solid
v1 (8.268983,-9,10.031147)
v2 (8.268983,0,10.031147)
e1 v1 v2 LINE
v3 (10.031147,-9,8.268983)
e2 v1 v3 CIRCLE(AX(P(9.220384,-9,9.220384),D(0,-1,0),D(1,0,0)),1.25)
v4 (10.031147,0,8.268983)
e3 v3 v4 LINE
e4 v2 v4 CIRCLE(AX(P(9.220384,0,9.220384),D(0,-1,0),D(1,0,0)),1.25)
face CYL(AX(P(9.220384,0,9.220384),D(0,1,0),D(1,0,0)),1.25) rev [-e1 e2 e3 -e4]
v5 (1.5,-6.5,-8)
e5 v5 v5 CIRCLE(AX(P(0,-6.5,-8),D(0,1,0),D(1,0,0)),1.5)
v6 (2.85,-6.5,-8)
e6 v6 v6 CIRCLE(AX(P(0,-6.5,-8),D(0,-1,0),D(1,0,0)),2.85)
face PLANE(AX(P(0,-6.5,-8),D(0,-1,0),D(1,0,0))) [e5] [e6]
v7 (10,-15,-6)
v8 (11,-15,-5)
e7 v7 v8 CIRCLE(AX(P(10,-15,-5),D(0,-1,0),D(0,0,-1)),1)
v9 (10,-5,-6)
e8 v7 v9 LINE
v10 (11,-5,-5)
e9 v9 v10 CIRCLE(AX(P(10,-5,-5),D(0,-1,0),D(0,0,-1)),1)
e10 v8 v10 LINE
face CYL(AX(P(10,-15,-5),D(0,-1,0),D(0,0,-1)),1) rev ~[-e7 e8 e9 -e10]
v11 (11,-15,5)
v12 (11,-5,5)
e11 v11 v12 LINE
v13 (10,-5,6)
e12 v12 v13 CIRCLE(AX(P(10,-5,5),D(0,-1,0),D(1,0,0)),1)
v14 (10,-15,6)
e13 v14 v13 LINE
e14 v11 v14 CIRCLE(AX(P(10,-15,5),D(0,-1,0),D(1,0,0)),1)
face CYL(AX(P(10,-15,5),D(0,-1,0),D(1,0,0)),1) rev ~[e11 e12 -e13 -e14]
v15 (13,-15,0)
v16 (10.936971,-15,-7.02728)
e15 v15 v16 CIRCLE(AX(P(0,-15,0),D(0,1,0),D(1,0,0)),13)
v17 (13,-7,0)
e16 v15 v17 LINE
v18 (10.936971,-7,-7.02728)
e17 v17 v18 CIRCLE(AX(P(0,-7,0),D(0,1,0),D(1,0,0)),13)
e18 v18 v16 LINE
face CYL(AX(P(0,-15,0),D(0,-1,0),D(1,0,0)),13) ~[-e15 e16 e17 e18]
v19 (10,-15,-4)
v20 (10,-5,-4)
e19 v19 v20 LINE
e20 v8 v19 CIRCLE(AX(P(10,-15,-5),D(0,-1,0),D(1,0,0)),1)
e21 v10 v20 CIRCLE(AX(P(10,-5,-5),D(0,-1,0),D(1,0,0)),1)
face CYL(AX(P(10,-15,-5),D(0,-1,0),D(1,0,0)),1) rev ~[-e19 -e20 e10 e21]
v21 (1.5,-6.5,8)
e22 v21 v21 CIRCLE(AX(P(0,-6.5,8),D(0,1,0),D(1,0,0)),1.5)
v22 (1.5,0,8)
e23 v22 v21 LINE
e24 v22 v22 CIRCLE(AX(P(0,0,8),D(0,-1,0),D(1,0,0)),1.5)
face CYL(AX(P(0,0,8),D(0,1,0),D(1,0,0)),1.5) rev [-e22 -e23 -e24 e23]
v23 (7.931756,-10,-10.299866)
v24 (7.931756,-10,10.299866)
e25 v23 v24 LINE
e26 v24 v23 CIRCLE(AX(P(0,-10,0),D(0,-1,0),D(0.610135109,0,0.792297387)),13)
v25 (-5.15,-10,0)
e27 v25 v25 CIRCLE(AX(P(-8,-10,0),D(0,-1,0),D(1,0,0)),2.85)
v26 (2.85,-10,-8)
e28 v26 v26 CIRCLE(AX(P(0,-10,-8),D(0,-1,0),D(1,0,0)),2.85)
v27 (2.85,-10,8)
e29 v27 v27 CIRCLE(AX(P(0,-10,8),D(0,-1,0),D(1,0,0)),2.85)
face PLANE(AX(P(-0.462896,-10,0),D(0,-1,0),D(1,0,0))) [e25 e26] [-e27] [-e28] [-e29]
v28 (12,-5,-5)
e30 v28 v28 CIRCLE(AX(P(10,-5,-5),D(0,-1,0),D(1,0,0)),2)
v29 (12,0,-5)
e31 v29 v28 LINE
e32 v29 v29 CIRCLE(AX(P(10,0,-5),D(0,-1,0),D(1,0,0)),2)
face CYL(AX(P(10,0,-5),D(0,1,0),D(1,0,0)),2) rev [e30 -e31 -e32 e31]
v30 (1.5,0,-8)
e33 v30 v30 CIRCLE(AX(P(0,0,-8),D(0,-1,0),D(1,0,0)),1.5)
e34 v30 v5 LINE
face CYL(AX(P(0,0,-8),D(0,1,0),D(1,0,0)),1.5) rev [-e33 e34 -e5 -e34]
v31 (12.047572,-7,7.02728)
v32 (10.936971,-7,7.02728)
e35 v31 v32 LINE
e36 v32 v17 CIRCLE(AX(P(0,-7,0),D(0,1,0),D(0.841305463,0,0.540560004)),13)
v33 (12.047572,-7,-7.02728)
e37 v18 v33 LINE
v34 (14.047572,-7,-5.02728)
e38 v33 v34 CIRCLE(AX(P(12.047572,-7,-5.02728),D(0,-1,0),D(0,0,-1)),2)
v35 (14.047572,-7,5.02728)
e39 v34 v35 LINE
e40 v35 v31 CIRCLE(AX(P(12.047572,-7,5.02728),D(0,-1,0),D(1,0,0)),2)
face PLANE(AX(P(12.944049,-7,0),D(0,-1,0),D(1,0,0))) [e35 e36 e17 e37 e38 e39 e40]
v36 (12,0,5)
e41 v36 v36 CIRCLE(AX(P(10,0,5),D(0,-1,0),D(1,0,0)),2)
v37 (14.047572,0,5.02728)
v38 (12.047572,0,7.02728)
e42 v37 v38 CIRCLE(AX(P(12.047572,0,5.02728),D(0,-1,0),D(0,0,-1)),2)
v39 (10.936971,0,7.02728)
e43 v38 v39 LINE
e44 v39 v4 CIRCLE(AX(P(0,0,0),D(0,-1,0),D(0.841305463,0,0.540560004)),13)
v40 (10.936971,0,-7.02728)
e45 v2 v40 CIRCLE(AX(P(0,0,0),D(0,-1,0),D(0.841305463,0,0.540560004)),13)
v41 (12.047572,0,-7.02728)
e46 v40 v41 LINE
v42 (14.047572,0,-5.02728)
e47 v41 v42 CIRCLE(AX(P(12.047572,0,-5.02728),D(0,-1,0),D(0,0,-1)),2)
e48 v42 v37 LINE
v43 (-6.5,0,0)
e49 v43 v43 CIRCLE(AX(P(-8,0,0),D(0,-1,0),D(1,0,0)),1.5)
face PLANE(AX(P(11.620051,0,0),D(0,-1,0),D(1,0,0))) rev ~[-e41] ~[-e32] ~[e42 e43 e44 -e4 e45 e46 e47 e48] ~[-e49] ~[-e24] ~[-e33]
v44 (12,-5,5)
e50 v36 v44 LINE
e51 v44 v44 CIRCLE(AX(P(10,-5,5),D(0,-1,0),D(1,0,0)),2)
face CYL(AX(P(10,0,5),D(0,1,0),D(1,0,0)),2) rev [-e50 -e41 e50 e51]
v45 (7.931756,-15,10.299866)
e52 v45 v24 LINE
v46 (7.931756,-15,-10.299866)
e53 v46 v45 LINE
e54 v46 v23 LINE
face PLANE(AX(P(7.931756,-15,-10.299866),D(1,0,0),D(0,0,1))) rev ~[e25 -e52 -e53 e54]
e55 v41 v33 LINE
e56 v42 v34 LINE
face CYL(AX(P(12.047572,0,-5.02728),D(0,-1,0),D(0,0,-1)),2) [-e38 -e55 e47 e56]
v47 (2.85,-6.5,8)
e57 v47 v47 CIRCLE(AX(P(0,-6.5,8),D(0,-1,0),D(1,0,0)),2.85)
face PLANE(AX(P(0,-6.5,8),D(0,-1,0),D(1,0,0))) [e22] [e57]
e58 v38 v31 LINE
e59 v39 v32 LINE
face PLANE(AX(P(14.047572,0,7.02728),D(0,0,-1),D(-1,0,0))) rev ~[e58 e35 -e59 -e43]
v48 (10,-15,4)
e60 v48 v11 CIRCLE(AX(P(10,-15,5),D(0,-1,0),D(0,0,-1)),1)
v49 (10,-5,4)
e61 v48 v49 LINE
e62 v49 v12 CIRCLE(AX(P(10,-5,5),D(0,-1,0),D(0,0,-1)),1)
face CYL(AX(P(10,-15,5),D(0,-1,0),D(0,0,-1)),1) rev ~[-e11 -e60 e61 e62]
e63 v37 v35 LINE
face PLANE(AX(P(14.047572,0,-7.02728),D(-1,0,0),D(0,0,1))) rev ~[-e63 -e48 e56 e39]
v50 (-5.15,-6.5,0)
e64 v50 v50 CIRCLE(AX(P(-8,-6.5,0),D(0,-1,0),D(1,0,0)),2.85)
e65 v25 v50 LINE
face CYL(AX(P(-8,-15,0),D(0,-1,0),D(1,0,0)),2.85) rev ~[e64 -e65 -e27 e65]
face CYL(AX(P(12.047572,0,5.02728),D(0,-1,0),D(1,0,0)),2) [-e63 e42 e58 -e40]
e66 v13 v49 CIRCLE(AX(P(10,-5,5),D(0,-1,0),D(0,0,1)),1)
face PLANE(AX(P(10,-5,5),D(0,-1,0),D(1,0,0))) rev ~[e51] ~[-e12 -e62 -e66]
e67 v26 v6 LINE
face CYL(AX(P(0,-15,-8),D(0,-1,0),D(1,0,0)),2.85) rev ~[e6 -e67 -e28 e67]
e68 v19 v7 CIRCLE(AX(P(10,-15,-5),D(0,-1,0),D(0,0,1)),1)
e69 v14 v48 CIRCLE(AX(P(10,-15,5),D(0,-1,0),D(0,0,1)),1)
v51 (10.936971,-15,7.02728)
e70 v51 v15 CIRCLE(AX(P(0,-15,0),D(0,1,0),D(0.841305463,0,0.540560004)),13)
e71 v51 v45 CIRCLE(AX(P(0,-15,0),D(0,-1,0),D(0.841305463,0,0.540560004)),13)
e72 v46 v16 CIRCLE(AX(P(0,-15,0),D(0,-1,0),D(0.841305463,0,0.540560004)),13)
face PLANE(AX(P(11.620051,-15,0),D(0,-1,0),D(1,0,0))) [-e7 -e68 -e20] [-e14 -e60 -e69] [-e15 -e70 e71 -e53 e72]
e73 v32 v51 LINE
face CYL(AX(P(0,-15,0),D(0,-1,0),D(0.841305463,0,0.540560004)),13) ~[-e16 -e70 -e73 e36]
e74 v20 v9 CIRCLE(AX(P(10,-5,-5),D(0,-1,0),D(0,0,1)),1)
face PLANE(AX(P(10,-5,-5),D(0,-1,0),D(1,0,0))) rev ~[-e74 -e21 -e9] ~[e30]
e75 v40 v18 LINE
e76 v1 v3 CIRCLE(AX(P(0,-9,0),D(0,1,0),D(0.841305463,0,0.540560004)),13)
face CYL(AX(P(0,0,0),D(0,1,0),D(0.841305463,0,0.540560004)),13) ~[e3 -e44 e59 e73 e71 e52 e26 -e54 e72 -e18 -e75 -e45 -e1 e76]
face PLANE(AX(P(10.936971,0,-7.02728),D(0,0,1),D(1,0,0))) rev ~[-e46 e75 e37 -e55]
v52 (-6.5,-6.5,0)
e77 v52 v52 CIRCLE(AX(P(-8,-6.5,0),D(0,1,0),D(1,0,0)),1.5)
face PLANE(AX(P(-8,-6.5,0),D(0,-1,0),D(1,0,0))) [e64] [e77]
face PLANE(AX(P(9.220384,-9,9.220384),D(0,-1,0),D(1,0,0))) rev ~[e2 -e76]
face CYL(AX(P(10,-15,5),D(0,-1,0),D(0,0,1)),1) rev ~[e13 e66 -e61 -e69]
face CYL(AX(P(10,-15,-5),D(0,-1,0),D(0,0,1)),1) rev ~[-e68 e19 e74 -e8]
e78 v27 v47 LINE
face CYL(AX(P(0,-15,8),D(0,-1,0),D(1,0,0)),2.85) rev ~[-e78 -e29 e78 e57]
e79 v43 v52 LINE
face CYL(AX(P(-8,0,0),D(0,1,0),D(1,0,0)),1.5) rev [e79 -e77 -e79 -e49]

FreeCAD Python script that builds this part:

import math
import FreeCAD as App
import Part
import Sketcher
Q = App.Units.Quantity


def edges_at(feature, points):
    """Names of the edges that pass closest to the given points."""
    edges = feature.Shape.Edges
    near = lambda p: min(range(len(edges)), key=lambda i: edges[i].distToShape(Part.Vertex(*p))[0])
    return sorted({f"Edge{near(p) + 1}" for p in points})

doc = App.newDocument("Part")
body = doc.addObject("PartDesign::Body", "Body")

sketch1 = body.newObject("Sketcher::SketchObject", "Sketch")
sketch1.AttachmentSupport = (doc.getObject("XZ_Plane"), [""])
sketch1.MapMode = "FlatFace"
sketch1.addGeometry([
    Part.LineSegment(App.Vector(10.936971, -7.02728, 0), App.Vector(14.047572, -7.02728, 0)),
    Part.LineSegment(App.Vector(14.047572, -7.02728, 0), App.Vector(14.047572, 7.02728, 0)),
    Part.LineSegment(App.Vector(14.047572, 7.02728, 0), App.Vector(10.936971, 7.02728, 0)),
    Part.ArcOfCircle(Part.Circle(App.Vector(0, 0, 0), App.Vector(0, 0, 1), 13), math.radians(32.721769), math.radians(327.278231)),
    Part.Circle(App.Vector(0, -8, 0), App.Vector(0, 0, 1), 1.5),
    Part.Circle(App.Vector(-8, 0, 0), App.Vector(0, 0, 1), 1.5),
    Part.Circle(App.Vector(0, 8, 0), App.Vector(0, 0, 1), 1.5),
], False)
sketch1.addConstraint([
    Sketcher.Constraint("Coincident", 0, 2, 1, 1),
    Sketcher.Constraint("Coincident", 1, 2, 2, 1),
    Sketcher.Constraint("Coincident", 2, 2, 3, 1),
    Sketcher.Constraint("Coincident", 3, 2, 0, 1),
    Sketcher.Constraint("Horizontal", 0),
    Sketcher.Constraint("Vertical", 1),
    Sketcher.Constraint("Horizontal", 2),
    Sketcher.Constraint("Coincident", 3, 3, -1, 1),
    Sketcher.Constraint("Equal", 4, 5),
    Sketcher.Constraint("Equal", 5, 6),
    Sketcher.Constraint("Symmetric", 4, 3, 6, 3, -1, 1),
    Sketcher.Constraint("PointOnObject", 4, 3, -2),
    Sketcher.Constraint("PointOnObject", 5, 3, -1),
    Sketcher.Constraint("Vertical", 2, 2, 3, 2),
    Sketcher.Constraint("Diameter", 4, Q("3 mm")),
    Sketcher.Constraint("Radius", 3, Q("13 mm")),
    Sketcher.Constraint("DistanceY", 4, 3, -1, 1, Q("8 mm")),
    Sketcher.Constraint("DistanceX", 5, 3, -1, 1, Q("8 mm")),
    Sketcher.Constraint("DistanceX", 0, 1, 0, 2, Q("3.110601 mm")),
    Sketcher.Constraint("DistanceY", 1, 1, 1, 2, Q("14.05456 mm")),
])
pad1 = body.newObject("PartDesign::Pad", "Pad")
pad1.Profile = sketch1
pad1.Length = 15

sketch2 = body.newObject("Sketcher::SketchObject", "Sketch001")
sketch2.AttachmentSupport = (doc.getObject("XZ_Plane"), [""])
sketch2.MapMode = "FlatFace"
sketch2.AttachmentOffset = App.Placement(App.Vector(0, 0, 15), App.Rotation())
sketch2.addGeometry([
    Part.ArcOfCircle(Part.Circle(App.Vector(10, 5, 0), App.Vector(0, 0, 1), 1), math.radians(0), math.radians(90)),
    Part.ArcOfCircle(Part.Circle(App.Vector(10, 5, 0), App.Vector(0, 0, 1), 1), math.radians(90), math.radians(270)),
    Part.ArcOfCircle(Part.Circle(App.Vector(10, 5, 0), App.Vector(0, 0, 1), 1), math.radians(-90), math.radians(0)),
    Part.ArcOfCircle(Part.Circle(App.Vector(10, -5, 0), App.Vector(0, 0, 1), 1), math.radians(0), math.radians(90)),
    Part.ArcOfCircle(Part.Circle(App.Vector(10, -5, 0), App.Vector(0, 0, 1), 1), math.radians(90), math.radians(270)),
    Part.ArcOfCircle(Part.Circle(App.Vector(10, -5, 0), App.Vector(0, 0, 1), 1), math.radians(-90), math.radians(0)),
], False)
sketch2.addConstraint([
    Sketcher.Constraint("Tangent", 0, 2, 1, 1),
    Sketcher.Constraint("Tangent", 1, 2, 2, 1),
    Sketcher.Constraint("Tangent", 2, 2, 0, 1),
    Sketcher.Constraint("Tangent", 3, 2, 4, 1),
    Sketcher.Constraint("Tangent", 4, 2, 5, 1),
    Sketcher.Constraint("Tangent", 5, 2, 3, 1),
    Sketcher.Constraint("Equal", 2, 3),
    Sketcher.Constraint("Symmetric", 0, 3, 3, 3, -1),
    Sketcher.Constraint("Horizontal", 1, 3, 2, 2),
    Sketcher.Constraint("Horizontal", 4, 3, 5, 2),
    Sketcher.Constraint("Vertical", 5, 3, 0, 2),
    Sketcher.Constraint("Vertical", 0, 2, 1, 2),
    Sketcher.Constraint("Vertical", 1, 2, 3, 2),
    Sketcher.Constraint("Vertical", 3, 2, 4, 2),
    Sketcher.Constraint("Radius", 0, Q("1 mm")),
    Sketcher.Constraint("DistanceX", -1, 1, 0, 3, Q("10 mm")),
    Sketcher.Constraint("DistanceY", -1, 1, 0, 3, Q("5 mm")),
])
pocket1 = body.newObject("PartDesign::Pocket", "Pocket")
pocket1.Profile = sketch2
pocket1.Length = 15

sketch3 = body.newObject("Sketcher::SketchObject", "Sketch002")
sketch3.AttachmentSupport = (doc.getObject("XZ_Plane"), [""])
sketch3.MapMode = "FlatFace"
sketch3.addGeometry([
    Part.Circle(App.Vector(10, 5, 0), App.Vector(0, 0, 1), 2),
    Part.Circle(App.Vector(10, -5, 0), App.Vector(0, 0, 1), 2),
], False)
sketch3.addConstraint([
    Sketcher.Constraint("Equal", 0, 1),
    Sketcher.Constraint("Symmetric", 0, 3, 1, 3, -1),
    Sketcher.Constraint("Diameter", 0, Q("4 mm")),
    Sketcher.Constraint("DistanceX", -1, 1, 0, 3, Q("10 mm")),
    Sketcher.Constraint("DistanceY", -1, 1, 0, 3, Q("5 mm")),
])
pocket2 = body.newObject("PartDesign::Pocket", "Pocket001")
pocket2.Profile = sketch3
pocket2.Length = 5
pocket2.Reversed = True

sketch4 = body.newObject("Sketcher::SketchObject", "Sketch003")
sketch4.AttachmentSupport = (doc.getObject("XZ_Plane"), [""])
sketch4.MapMode = "FlatFace"
sketch4.AttachmentOffset = App.Placement(App.Vector(0, 0, 15), App.Rotation())
sketch4.addGeometry([
    Part.Circle(App.Vector(0, 8, 0), App.Vector(0, 0, 1), 2.85),
    Part.Circle(App.Vector(0, -8, 0), App.Vector(0, 0, 1), 2.85),
    Part.Circle(App.Vector(-8, 0, 0), App.Vector(0, 0, 1), 2.85),
], False)
sketch4.addConstraint([
    Sketcher.Constraint("Equal", 0, 1),
    Sketcher.Constraint("Equal", 1, 2),
    Sketcher.Constraint("Symmetric", 0, 3, 1, 3, -1, 1),
    Sketcher.Constraint("PointOnObject", 0, 3, -2),
    Sketcher.Constraint("PointOnObject", 2, 3, -1),
    Sketcher.Constraint("Diameter", 0, Q("5.7 mm")),
    Sketcher.Constraint("DistanceY", -1, 1, 0, 3, Q("8 mm")),
    Sketcher.Constraint("DistanceX", 2, 3, -1, 1, Q("8 mm")),
])
pocket3 = body.newObject("PartDesign::Pocket", "Pocket002")
pocket3.Profile = sketch4
pocket3.Length = 8.5
doc.recompute()

fillet = body.newObject("PartDesign::Fillet", "Fillet")
fillet.Base = (pocket3, edges_at(pocket3, [(14.048, -7.5, 7.027), (14.048, -7.5, -7.027)]))
fillet.Radius = 2

sketch5 = body.newObject("Sketcher::SketchObject", "Sketch004")
sketch5.AttachmentSupport = (doc.getObject("XZ_Plane"), [""])
sketch5.MapMode = "FlatFace"
sketch5.addGeometry(Part.Circle(App.Vector(9.220384, 9.220384, 0), App.Vector(0, 0, 1), 1.25), False)
sketch5.addConstraint([
    Sketcher.Constraint("Diameter", 0, Q("2.5 mm")),
    Sketcher.Constraint("DistanceX", -1, 1, 0, 3, Q("9.220384 mm")),
    Sketcher.Constraint("DistanceY", -1, 1, 0, 3, Q("9.220384 mm")),
])
pocket4 = body.newObject("PartDesign::Pocket", "Pocket003")
pocket4.Profile = sketch5
pocket4.Length = 9
pocket4.Reversed = True

sketch6 = body.newObject("Sketcher::SketchObject", "Sketch005")
sketch6.AttachmentSupport = (doc.getObject("XZ_Plane"), [""])
sketch6.MapMode = "FlatFace"
sketch6.AttachmentOffset = App.Placement(App.Vector(0, 0, 15), App.Rotation())
sketch6.addGeometry([
    Part.ArcOfCircle(Part.Circle(App.Vector(0, 0, 0), App.Vector(0, 0, 1), 13), math.radians(0), math.radians(32.721769)),
    Part.ArcOfCircle(Part.Circle(App.Vector(0, 0, 0), App.Vector(0, 0, 1), 13), math.radians(-32.721769), math.radians(0)),
    Part.LineSegment(App.Vector(10.936971, -7.02728, 0), App.Vector(12.047572, -7.02728, 0)),
    Part.ArcOfCircle(Part.Circle(App.Vector(12.047572, -5.02728, 0), App.Vector(0, 0, 1), 2), math.radians(-90), math.radians(0)),
    Part.LineSegment(App.Vector(14.047572, -5.02728, 0), App.Vector(14.047572, 5.02728, 0)),
    Part.ArcOfCircle(Part.Circle(App.Vector(12.047572, 5.02728, 0), App.Vector(0, 0, 1), 2), math.radians(0), math.radians(90)),
    Part.LineSegment(App.Vector(12.047572, 7.02728, 0), App.Vector(10.936971, 7.02728, 0)),
], False)
sketch6.addConstraint([
    Sketcher.Constraint("Tangent", 0, 1, 1, 2),
    Sketcher.Constraint("Coincident", 1, 1, 2, 1),
    Sketcher.Constraint("Tangent", 2, 2, 3, 1),
    Sketcher.Constraint("Tangent", 3, 2, 4, 1),
    Sketcher.Constraint("Tangent", 4, 2, 5, 1),
    Sketcher.Constraint("Tangent", 5, 2, 6, 1),
    Sketcher.Constraint("Coincident", 6, 2, 0, 2),
    Sketcher.Constraint("Horizontal", 2),
    Sketcher.Constraint("Vertical", 4),
    Sketcher.Constraint("Horizontal", 6),
    Sketcher.Constraint("Coincident", 0, 3, -1, 1),
    Sketcher.Constraint("Equal", 0, 1),
    Sketcher.Constraint("Equal", 3, 5),
    Sketcher.Constraint("PointOnObject", 0, 1, -1),
    Sketcher.Constraint("Vertical", 1, 1, 6, 2),
    Sketcher.Constraint("Radius", 0, Q("13 mm")),
    Sketcher.Constraint("Radius", 3, Q("2 mm")),
    Sketcher.Constraint("DistanceX", 2, 1, 2, 2, Q("1.110601 mm")),
    Sketcher.Constraint("DistanceY", 4, 1, 4, 2, Q("10.05456 mm")),
])
pocket5 = body.newObject("PartDesign::Pocket", "Pocket004")
pocket5.Profile = sketch6
pocket5.Length = 8

sketch7 = body.newObject("Sketcher::SketchObject", "Sketch006")
sketch7.AttachmentSupport = (doc.getObject("XZ_Plane"), [""])
sketch7.MapMode = "FlatFace"
sketch7.AttachmentOffset = App.Placement(App.Vector(0, 0, 15), App.Rotation())
sketch7.addGeometry([
    Part.LineSegment(App.Vector(7.931756, -10.299866, 0), App.Vector(7.931756, 10.299866, 0)),
    Part.ArcOfCircle(Part.Circle(App.Vector(0, 0, 0), App.Vector(0, 0, 1), 13), math.radians(52.400727), math.radians(307.599273)),
    Part.Circle(App.Vector(0, -8, 0), App.Vector(0, 0, 1), 2.85),
    Part.Circle(App.Vector(-8, 0, 0), App.Vector(0, 0, 1), 2.85),
    Part.Circle(App.Vector(0, 8, 0), App.Vector(0, 0, 1), 2.85),
], False)
sketch7.addConstraint([
    Sketcher.Constraint("Coincident", 0, 1, 1, 2),
    Sketcher.Constraint("Coincident", 1, 1, 0, 2),
    Sketcher.Constraint("Vertical", 0),
    Sketcher.Constraint("Coincident", 1, 3, -1, 1),
    Sketcher.Constraint("Equal", 2, 3),
    Sketcher.Constraint("Equal", 3, 4),
    Sketcher.Constraint("Symmetric", 2, 3, 4, 3, -1, 1),
    Sketcher.Constraint("PointOnObject", 2, 3, -2),
    Sketcher.Constraint("PointOnObject", 3, 3, -1),
    Sketcher.Constraint("Radius", 1, Q("13 mm")),
    Sketcher.Constraint("Diameter", 2, Q("5.7 mm")),
    Sketcher.Constraint("DistanceY", 2, 3, -1, 1, Q("8 mm")),
    Sketcher.Constraint("DistanceX", 3, 3, -1, 1, Q("8 mm")),
    Sketcher.Constraint("DistanceY", 0, 1, 0, 2, Q("20.599732 mm")),
])
pocket6 = body.newObject("PartDesign::Pocket", "Pocket005")
pocket6.Profile = sketch7
pocket6.Length = 5

doc.recompute()
